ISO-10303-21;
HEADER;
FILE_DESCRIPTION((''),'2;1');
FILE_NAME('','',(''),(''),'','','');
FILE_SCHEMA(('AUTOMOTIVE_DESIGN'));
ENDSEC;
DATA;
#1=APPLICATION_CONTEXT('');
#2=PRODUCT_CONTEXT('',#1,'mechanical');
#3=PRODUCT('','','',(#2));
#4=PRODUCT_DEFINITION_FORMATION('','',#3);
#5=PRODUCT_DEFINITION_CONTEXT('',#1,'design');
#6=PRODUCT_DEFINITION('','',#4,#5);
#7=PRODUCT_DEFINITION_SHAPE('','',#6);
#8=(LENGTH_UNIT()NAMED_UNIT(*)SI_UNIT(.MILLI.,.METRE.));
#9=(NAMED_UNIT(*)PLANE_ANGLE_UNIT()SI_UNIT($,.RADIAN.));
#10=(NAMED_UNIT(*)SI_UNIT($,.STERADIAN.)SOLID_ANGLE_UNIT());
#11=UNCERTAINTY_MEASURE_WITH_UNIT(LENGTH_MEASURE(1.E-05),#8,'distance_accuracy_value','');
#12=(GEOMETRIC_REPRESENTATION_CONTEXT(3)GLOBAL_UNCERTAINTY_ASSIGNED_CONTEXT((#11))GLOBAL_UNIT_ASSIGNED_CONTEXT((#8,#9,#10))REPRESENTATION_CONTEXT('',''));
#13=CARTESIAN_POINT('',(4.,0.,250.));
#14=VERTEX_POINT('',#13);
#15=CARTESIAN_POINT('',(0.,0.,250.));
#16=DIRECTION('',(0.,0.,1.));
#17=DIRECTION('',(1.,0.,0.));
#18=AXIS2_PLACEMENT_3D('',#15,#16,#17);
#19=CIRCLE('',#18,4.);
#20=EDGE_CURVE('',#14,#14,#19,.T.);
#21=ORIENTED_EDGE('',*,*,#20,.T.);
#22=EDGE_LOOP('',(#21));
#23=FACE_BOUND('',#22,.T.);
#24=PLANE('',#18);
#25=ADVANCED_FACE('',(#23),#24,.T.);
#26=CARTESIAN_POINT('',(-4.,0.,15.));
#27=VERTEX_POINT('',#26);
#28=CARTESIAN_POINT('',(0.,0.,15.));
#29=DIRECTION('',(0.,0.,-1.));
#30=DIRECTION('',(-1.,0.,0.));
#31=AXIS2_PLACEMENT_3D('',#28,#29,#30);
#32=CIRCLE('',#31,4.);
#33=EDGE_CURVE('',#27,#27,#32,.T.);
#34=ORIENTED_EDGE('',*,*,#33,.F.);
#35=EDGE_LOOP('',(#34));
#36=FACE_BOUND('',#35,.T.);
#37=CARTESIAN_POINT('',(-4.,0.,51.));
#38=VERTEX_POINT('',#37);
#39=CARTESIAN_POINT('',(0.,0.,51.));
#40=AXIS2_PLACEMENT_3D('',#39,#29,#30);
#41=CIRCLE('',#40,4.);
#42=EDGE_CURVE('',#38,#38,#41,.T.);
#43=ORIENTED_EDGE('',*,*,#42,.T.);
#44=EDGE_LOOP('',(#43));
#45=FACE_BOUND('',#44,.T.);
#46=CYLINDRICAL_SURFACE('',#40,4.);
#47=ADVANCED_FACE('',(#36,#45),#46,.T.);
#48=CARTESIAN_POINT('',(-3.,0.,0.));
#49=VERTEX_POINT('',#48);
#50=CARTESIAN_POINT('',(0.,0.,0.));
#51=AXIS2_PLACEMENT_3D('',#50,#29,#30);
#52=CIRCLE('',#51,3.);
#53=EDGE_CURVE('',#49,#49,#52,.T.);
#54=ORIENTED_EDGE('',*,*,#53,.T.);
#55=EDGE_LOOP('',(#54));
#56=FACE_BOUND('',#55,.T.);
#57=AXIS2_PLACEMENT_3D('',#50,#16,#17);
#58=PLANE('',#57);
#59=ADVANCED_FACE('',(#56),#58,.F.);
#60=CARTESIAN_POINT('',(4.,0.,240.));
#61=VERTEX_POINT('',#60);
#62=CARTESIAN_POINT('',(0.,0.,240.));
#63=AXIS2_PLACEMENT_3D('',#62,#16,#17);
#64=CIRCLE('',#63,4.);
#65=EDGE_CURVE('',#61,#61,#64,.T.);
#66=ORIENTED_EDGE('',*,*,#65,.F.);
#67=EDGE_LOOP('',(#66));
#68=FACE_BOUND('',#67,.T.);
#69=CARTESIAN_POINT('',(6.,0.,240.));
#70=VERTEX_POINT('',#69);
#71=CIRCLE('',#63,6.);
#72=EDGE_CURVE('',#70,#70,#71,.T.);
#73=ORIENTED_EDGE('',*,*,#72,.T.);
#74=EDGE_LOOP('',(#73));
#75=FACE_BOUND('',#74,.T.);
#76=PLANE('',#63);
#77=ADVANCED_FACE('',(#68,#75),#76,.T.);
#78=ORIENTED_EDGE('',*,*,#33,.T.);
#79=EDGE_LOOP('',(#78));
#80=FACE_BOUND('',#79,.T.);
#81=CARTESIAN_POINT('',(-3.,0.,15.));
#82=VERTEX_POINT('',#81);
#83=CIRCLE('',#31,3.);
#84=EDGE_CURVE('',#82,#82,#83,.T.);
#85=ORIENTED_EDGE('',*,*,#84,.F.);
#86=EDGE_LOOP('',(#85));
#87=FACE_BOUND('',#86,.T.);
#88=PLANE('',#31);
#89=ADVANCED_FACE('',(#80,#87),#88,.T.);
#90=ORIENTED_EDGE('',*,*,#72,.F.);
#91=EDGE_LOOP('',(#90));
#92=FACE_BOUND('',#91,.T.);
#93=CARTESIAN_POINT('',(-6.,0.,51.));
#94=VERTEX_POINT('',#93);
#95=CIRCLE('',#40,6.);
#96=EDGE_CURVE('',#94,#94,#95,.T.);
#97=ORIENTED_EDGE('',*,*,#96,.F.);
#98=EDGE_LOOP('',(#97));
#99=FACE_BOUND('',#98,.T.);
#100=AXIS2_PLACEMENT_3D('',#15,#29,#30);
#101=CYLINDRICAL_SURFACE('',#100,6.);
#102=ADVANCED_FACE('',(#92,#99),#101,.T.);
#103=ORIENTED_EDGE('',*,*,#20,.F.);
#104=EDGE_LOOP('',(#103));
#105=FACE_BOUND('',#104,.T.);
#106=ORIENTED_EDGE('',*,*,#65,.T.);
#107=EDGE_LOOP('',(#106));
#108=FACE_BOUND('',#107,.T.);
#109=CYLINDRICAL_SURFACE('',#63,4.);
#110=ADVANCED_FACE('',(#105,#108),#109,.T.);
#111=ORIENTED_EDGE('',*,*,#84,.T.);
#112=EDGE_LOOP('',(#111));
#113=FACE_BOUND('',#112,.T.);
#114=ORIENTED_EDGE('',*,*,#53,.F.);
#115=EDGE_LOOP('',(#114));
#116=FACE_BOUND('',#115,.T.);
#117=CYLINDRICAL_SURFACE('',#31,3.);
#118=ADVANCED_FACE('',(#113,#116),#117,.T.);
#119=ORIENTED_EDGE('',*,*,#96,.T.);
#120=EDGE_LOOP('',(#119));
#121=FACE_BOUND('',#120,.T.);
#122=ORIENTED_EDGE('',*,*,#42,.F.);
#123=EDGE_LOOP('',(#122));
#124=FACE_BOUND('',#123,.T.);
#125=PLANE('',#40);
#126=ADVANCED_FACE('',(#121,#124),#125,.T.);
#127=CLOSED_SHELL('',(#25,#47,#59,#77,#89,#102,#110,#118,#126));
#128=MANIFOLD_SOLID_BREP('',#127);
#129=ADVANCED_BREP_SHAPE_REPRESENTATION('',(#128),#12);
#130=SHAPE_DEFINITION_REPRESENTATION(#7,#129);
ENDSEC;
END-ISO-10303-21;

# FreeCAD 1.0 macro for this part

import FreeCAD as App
import Part
import Sketcher

V = App.Vector
Q = App.Units.Quantity


def add_polygon(sketch, points):
    """Adds a closed chain of lines whose ends are joined by coincident constraints."""
    first, n = sketch.GeometryCount, len(points)
    for a, b in zip(points, points[1:] + points[:1]):
        sketch.addGeometry(Part.LineSegment(App.Vector(*a, 0), App.Vector(*b, 0)), False)
    for i in range(n):
        sketch.addConstraint(Sketcher.Constraint("Coincident", first + i, 2, first + (i + 1) % n, 1))

doc = App.newDocument("Part")
body = doc.addObject("PartDesign::Body", "Body")

sketch1 = body.newObject("Sketcher::SketchObject", "Sketch")
sketch1.AttachmentSupport = (doc.getObject("XY_Plane"), [""])
sketch1.MapMode = "FlatFace"
sketch1.addGeometry(Part.Circle(V(0, 0, 0), V(0, 0, 1), 6), False)
sketch1.addConstraint(Sketcher.Constraint("Coincident", 0, 3, -1, 1))
sketch1.addConstraint(Sketcher.Constraint("Diameter", 0, Q("12 mm")))
pad1 = body.newObject("PartDesign::Pad", "Pad")
pad1.Profile = sketch1
pad1.Length = 250

sketch2 = body.newObject("Sketcher::SketchObject", "Sketch001")
sketch2.AttachmentSupport = (doc.getObject("XY_Plane"), [""])
sketch2.MapMode = "FlatFace"
add_polygon(sketch2, [(32.1, 32.1), (32.1, -32.1), (-32.1, -32.1), (-32.1, 32.1)])
sketch2.addGeometry(Part.Circle(V(0, 0, 0), V(0, 0, 1), 3), False)
sketch2.addConstraint(Sketcher.Constraint("Vertical", 0))
sketch2.addConstraint(Sketcher.Constraint("Horizontal", 1))
sketch2.addConstraint(Sketcher.Constraint("Vertical", 2))
sketch2.addConstraint(Sketcher.Constraint("Horizontal", 3))
sketch2.addConstraint(Sketcher.Constraint("Coincident", 4, 3, -1, 1))
sketch2.addConstraint(Sketcher.Constraint("Symmetric", 0, 2, 2, 2, -1, 1))
sketch2.addConstraint(Sketcher.Constraint("Equal", 3, 0))
sketch2.addConstraint(Sketcher.Constraint("Diameter", 4, Q("6 mm")))
sketch2.addConstraint(Sketcher.Constraint("DistanceX", 1, 2, 1, 1, Q("64.116 mm")))
pocket1 = body.newObject("PartDesign::Pocket", "Pocket")
pocket1.Profile = sketch2
pocket1.Length = 15
pocket1.Reversed = True

sketch3 = body.newObject("Sketcher::SketchObject", "Sketch002")
sketch3.AttachmentSupport = (doc.getObject("XY_Plane"), [""])
sketch3.MapMode = "FlatFace"
add_polygon(sketch3, [(32.1, 32.1), (32.1, -32.1), (-32.1, -32.1), (-32.1, 32.1)])
sketch3.addGeometry(Part.Circle(V(0, 0, 0), V(0, 0, 1), 4), False)
sketch3.addConstraint(Sketcher.Constraint("Vertical", 0))
sketch3.addConstraint(Sketcher.Constraint("Horizontal", 1))
sketch3.addConstraint(Sketcher.Constraint("Vertical", 2))
sketch3.addConstraint(Sketcher.Constraint("Horizontal", 3))
sketch3.addConstraint(Sketcher.Constraint("Coincident", 4, 3, -1, 1))
sketch3.addConstraint(Sketcher.Constraint("Symmetric", 0, 2, 2, 2, -1, 1))
sketch3.addConstraint(Sketcher.Constraint("Equal", 3, 0))
sketch3.addConstraint(Sketcher.Constraint("Diameter", 4, Q("8 mm")))
sketch3.addConstraint(Sketcher.Constraint("DistanceX", 1, 2, 1, 1, Q("64.116 mm")))
pocket2 = body.newObject("PartDesign::Pocket", "Pocket001")
pocket2.Profile = sketch3
pocket2.Length = 51
pocket2.Reversed = True

sketch4 = body.newObject("Sketcher::SketchObject", "Sketch003")
sketch4.AttachmentSupport = (doc.getObject("XY_Plane"), [""])
sketch4.MapMode = "FlatFace"
sketch4.AttachmentOffset = App.Placement(V(0, 0, 250), App.Rotation())
add_polygon(sketch4, [(-32.1, 32.1), (-32.1, -32.1), (32.1, -32.1), (32.1, 32.1)])
sketch4.addGeometry(Part.Circle(V(0, 0, 0), V(0, 0, 1), 4), False)
sketch4.addConstraint(Sketcher.Constraint("Vertical", 0))
sketch4.addConstraint(Sketcher.Constraint("Horizontal", 1))
sketch4.addConstraint(Sketcher.Constraint("Vertical", 2))
sketch4.addConstraint(Sketcher.Constraint("Horizontal", 3))
sketch4.addConstraint(Sketcher.Constraint("Coincident", 4, 3, -1, 1))
sketch4.addConstraint(Sketcher.Constraint("Symmetric", 0, 2, 2, 2, -1, 1))
sketch4.addConstraint(Sketcher.Constraint("Equal", 3, 0))
sketch4.addConstraint(Sketcher.Constraint("Diameter", 4, Q("8 mm")))
sketch4.addConstraint(Sketcher.Constraint("DistanceX", 1, 1, 1, 2, Q("64.116 mm")))
pocket3 = body.newObject("PartDesign::Pocket", "Pocket002")
pocket3.Profile = sketch4
pocket3.Length = 10

doc.recompute()
